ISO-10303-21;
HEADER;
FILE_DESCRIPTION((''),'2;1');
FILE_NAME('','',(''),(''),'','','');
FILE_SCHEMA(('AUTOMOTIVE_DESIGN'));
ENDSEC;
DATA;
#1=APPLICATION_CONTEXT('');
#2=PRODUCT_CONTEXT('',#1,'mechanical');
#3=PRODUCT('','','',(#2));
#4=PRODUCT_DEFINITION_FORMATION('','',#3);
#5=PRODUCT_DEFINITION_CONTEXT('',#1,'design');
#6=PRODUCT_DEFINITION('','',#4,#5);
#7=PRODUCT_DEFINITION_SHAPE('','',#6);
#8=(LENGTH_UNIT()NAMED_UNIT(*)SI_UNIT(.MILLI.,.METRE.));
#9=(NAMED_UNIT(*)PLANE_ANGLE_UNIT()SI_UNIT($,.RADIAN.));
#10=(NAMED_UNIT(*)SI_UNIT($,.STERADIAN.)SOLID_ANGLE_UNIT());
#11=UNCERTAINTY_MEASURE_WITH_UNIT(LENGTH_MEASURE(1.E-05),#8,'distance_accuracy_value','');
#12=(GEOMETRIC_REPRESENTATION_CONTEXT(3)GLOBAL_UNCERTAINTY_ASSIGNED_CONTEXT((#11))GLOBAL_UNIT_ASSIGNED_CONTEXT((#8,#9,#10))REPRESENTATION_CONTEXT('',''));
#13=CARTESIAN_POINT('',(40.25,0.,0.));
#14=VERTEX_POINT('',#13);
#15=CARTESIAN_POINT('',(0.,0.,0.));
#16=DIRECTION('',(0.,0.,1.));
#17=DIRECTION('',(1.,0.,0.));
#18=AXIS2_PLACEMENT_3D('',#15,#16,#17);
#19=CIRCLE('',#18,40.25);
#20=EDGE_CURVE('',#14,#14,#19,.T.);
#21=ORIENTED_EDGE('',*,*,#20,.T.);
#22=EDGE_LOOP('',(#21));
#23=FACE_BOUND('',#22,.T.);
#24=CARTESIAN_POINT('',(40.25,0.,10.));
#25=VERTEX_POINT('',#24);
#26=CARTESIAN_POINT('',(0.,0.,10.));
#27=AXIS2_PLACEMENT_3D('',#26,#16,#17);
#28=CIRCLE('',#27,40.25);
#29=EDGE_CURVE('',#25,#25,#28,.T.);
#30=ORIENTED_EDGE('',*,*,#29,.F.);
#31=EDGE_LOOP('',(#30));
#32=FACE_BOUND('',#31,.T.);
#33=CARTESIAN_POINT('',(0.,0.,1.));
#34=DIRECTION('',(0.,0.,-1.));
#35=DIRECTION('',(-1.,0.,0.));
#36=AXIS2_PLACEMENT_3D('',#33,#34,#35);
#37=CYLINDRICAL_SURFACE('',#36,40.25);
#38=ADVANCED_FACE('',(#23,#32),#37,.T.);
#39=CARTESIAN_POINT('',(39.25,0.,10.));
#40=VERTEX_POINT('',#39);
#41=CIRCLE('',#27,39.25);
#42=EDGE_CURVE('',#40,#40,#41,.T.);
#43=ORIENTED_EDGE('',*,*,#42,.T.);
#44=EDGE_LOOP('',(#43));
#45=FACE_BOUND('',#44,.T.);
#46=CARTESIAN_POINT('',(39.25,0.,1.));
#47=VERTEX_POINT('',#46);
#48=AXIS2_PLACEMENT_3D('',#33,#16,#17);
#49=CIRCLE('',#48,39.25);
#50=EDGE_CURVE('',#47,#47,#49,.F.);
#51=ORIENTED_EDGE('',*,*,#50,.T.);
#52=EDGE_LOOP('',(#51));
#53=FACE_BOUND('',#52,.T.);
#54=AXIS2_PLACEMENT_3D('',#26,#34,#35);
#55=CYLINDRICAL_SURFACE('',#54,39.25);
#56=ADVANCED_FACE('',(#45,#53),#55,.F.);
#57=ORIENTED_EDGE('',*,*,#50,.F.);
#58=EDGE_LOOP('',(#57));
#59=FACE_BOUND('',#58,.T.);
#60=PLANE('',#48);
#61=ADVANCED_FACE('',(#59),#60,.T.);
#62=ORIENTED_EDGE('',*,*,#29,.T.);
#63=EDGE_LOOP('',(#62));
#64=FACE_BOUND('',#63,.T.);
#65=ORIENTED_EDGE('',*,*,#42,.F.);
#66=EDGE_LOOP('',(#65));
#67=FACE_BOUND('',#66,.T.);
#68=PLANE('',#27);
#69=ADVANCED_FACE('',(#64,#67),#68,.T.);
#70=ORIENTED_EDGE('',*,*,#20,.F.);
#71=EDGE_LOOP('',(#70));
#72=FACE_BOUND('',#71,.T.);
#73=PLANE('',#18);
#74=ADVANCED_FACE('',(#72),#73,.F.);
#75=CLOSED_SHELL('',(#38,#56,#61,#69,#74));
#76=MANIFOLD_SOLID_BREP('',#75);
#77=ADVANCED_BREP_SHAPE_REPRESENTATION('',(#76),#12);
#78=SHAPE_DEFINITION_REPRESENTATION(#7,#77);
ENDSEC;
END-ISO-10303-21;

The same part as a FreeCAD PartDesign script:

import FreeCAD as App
import Part
import Sketcher
from FreeCAD import Vector

doc = App.newDocument("Part")
body = doc.addObject("PartDesign::Body", "Body")

# Sketch on XY plane
sketch1 = doc.addObject("Sketcher::SketchObject", "Sketch")
body.addObject(sketch1)
sketch1.AttachmentSupport = (doc.XY_Plane, [""])
sketch1.MapMode = "FlatFace"
sketch1.addGeometry(Part.Circle(Vector(0, 0, 0), Vector(0, 0, 1), 40), False)
sketch1.addConstraint(Sketcher.Constraint("Coincident", 0, 3, -1, 1))
sketch1.addConstraint(Sketcher.Constraint("Diameter", 0, 80.5))
pad1 = doc.addObject("PartDesign::Pad", "Pad")
body.addObject(pad1)
pad1.Profile = sketch1
pad1.Length = 1

# Sketch on XY plane
sketch2 = doc.addObject("Sketcher::SketchObject", "Sketch001")
body.addObject(sketch2)
sketch2.AttachmentSupport = (doc.XY_Plane, [""])
sketch2.MapMode = "FlatFace"
sketch2.AttachmentOffset = App.Placement(Vector(0, 0, 1), App.Rotation())
sketch2.addGeometry(Part.Circle(Vector(0, 0, 0), Vector(0, 0, 1), 40), False)
sketch2.addGeometry(Part.Circle(Vector(0, 0, 0), Vector(0, 0, 1), 39), False)
sketch2.addConstraint(Sketcher.Constraint("Coincident", 0, 3, -1, 1))
sketch2.addConstraint(Sketcher.Constraint("Coincident", 1, 3, -1, 1))
sketch2.addConstraint(Sketcher.Constraint("Diameter", 0, 80.5))
sketch2.addConstraint(Sketcher.Constraint("Diameter", 1, 78.5))
pad2 = doc.addObject("PartDesign::Pad", "Pad001")
body.addObject(pad2)
pad2.Profile = sketch2
pad2.Length = 9

doc.recompute()
